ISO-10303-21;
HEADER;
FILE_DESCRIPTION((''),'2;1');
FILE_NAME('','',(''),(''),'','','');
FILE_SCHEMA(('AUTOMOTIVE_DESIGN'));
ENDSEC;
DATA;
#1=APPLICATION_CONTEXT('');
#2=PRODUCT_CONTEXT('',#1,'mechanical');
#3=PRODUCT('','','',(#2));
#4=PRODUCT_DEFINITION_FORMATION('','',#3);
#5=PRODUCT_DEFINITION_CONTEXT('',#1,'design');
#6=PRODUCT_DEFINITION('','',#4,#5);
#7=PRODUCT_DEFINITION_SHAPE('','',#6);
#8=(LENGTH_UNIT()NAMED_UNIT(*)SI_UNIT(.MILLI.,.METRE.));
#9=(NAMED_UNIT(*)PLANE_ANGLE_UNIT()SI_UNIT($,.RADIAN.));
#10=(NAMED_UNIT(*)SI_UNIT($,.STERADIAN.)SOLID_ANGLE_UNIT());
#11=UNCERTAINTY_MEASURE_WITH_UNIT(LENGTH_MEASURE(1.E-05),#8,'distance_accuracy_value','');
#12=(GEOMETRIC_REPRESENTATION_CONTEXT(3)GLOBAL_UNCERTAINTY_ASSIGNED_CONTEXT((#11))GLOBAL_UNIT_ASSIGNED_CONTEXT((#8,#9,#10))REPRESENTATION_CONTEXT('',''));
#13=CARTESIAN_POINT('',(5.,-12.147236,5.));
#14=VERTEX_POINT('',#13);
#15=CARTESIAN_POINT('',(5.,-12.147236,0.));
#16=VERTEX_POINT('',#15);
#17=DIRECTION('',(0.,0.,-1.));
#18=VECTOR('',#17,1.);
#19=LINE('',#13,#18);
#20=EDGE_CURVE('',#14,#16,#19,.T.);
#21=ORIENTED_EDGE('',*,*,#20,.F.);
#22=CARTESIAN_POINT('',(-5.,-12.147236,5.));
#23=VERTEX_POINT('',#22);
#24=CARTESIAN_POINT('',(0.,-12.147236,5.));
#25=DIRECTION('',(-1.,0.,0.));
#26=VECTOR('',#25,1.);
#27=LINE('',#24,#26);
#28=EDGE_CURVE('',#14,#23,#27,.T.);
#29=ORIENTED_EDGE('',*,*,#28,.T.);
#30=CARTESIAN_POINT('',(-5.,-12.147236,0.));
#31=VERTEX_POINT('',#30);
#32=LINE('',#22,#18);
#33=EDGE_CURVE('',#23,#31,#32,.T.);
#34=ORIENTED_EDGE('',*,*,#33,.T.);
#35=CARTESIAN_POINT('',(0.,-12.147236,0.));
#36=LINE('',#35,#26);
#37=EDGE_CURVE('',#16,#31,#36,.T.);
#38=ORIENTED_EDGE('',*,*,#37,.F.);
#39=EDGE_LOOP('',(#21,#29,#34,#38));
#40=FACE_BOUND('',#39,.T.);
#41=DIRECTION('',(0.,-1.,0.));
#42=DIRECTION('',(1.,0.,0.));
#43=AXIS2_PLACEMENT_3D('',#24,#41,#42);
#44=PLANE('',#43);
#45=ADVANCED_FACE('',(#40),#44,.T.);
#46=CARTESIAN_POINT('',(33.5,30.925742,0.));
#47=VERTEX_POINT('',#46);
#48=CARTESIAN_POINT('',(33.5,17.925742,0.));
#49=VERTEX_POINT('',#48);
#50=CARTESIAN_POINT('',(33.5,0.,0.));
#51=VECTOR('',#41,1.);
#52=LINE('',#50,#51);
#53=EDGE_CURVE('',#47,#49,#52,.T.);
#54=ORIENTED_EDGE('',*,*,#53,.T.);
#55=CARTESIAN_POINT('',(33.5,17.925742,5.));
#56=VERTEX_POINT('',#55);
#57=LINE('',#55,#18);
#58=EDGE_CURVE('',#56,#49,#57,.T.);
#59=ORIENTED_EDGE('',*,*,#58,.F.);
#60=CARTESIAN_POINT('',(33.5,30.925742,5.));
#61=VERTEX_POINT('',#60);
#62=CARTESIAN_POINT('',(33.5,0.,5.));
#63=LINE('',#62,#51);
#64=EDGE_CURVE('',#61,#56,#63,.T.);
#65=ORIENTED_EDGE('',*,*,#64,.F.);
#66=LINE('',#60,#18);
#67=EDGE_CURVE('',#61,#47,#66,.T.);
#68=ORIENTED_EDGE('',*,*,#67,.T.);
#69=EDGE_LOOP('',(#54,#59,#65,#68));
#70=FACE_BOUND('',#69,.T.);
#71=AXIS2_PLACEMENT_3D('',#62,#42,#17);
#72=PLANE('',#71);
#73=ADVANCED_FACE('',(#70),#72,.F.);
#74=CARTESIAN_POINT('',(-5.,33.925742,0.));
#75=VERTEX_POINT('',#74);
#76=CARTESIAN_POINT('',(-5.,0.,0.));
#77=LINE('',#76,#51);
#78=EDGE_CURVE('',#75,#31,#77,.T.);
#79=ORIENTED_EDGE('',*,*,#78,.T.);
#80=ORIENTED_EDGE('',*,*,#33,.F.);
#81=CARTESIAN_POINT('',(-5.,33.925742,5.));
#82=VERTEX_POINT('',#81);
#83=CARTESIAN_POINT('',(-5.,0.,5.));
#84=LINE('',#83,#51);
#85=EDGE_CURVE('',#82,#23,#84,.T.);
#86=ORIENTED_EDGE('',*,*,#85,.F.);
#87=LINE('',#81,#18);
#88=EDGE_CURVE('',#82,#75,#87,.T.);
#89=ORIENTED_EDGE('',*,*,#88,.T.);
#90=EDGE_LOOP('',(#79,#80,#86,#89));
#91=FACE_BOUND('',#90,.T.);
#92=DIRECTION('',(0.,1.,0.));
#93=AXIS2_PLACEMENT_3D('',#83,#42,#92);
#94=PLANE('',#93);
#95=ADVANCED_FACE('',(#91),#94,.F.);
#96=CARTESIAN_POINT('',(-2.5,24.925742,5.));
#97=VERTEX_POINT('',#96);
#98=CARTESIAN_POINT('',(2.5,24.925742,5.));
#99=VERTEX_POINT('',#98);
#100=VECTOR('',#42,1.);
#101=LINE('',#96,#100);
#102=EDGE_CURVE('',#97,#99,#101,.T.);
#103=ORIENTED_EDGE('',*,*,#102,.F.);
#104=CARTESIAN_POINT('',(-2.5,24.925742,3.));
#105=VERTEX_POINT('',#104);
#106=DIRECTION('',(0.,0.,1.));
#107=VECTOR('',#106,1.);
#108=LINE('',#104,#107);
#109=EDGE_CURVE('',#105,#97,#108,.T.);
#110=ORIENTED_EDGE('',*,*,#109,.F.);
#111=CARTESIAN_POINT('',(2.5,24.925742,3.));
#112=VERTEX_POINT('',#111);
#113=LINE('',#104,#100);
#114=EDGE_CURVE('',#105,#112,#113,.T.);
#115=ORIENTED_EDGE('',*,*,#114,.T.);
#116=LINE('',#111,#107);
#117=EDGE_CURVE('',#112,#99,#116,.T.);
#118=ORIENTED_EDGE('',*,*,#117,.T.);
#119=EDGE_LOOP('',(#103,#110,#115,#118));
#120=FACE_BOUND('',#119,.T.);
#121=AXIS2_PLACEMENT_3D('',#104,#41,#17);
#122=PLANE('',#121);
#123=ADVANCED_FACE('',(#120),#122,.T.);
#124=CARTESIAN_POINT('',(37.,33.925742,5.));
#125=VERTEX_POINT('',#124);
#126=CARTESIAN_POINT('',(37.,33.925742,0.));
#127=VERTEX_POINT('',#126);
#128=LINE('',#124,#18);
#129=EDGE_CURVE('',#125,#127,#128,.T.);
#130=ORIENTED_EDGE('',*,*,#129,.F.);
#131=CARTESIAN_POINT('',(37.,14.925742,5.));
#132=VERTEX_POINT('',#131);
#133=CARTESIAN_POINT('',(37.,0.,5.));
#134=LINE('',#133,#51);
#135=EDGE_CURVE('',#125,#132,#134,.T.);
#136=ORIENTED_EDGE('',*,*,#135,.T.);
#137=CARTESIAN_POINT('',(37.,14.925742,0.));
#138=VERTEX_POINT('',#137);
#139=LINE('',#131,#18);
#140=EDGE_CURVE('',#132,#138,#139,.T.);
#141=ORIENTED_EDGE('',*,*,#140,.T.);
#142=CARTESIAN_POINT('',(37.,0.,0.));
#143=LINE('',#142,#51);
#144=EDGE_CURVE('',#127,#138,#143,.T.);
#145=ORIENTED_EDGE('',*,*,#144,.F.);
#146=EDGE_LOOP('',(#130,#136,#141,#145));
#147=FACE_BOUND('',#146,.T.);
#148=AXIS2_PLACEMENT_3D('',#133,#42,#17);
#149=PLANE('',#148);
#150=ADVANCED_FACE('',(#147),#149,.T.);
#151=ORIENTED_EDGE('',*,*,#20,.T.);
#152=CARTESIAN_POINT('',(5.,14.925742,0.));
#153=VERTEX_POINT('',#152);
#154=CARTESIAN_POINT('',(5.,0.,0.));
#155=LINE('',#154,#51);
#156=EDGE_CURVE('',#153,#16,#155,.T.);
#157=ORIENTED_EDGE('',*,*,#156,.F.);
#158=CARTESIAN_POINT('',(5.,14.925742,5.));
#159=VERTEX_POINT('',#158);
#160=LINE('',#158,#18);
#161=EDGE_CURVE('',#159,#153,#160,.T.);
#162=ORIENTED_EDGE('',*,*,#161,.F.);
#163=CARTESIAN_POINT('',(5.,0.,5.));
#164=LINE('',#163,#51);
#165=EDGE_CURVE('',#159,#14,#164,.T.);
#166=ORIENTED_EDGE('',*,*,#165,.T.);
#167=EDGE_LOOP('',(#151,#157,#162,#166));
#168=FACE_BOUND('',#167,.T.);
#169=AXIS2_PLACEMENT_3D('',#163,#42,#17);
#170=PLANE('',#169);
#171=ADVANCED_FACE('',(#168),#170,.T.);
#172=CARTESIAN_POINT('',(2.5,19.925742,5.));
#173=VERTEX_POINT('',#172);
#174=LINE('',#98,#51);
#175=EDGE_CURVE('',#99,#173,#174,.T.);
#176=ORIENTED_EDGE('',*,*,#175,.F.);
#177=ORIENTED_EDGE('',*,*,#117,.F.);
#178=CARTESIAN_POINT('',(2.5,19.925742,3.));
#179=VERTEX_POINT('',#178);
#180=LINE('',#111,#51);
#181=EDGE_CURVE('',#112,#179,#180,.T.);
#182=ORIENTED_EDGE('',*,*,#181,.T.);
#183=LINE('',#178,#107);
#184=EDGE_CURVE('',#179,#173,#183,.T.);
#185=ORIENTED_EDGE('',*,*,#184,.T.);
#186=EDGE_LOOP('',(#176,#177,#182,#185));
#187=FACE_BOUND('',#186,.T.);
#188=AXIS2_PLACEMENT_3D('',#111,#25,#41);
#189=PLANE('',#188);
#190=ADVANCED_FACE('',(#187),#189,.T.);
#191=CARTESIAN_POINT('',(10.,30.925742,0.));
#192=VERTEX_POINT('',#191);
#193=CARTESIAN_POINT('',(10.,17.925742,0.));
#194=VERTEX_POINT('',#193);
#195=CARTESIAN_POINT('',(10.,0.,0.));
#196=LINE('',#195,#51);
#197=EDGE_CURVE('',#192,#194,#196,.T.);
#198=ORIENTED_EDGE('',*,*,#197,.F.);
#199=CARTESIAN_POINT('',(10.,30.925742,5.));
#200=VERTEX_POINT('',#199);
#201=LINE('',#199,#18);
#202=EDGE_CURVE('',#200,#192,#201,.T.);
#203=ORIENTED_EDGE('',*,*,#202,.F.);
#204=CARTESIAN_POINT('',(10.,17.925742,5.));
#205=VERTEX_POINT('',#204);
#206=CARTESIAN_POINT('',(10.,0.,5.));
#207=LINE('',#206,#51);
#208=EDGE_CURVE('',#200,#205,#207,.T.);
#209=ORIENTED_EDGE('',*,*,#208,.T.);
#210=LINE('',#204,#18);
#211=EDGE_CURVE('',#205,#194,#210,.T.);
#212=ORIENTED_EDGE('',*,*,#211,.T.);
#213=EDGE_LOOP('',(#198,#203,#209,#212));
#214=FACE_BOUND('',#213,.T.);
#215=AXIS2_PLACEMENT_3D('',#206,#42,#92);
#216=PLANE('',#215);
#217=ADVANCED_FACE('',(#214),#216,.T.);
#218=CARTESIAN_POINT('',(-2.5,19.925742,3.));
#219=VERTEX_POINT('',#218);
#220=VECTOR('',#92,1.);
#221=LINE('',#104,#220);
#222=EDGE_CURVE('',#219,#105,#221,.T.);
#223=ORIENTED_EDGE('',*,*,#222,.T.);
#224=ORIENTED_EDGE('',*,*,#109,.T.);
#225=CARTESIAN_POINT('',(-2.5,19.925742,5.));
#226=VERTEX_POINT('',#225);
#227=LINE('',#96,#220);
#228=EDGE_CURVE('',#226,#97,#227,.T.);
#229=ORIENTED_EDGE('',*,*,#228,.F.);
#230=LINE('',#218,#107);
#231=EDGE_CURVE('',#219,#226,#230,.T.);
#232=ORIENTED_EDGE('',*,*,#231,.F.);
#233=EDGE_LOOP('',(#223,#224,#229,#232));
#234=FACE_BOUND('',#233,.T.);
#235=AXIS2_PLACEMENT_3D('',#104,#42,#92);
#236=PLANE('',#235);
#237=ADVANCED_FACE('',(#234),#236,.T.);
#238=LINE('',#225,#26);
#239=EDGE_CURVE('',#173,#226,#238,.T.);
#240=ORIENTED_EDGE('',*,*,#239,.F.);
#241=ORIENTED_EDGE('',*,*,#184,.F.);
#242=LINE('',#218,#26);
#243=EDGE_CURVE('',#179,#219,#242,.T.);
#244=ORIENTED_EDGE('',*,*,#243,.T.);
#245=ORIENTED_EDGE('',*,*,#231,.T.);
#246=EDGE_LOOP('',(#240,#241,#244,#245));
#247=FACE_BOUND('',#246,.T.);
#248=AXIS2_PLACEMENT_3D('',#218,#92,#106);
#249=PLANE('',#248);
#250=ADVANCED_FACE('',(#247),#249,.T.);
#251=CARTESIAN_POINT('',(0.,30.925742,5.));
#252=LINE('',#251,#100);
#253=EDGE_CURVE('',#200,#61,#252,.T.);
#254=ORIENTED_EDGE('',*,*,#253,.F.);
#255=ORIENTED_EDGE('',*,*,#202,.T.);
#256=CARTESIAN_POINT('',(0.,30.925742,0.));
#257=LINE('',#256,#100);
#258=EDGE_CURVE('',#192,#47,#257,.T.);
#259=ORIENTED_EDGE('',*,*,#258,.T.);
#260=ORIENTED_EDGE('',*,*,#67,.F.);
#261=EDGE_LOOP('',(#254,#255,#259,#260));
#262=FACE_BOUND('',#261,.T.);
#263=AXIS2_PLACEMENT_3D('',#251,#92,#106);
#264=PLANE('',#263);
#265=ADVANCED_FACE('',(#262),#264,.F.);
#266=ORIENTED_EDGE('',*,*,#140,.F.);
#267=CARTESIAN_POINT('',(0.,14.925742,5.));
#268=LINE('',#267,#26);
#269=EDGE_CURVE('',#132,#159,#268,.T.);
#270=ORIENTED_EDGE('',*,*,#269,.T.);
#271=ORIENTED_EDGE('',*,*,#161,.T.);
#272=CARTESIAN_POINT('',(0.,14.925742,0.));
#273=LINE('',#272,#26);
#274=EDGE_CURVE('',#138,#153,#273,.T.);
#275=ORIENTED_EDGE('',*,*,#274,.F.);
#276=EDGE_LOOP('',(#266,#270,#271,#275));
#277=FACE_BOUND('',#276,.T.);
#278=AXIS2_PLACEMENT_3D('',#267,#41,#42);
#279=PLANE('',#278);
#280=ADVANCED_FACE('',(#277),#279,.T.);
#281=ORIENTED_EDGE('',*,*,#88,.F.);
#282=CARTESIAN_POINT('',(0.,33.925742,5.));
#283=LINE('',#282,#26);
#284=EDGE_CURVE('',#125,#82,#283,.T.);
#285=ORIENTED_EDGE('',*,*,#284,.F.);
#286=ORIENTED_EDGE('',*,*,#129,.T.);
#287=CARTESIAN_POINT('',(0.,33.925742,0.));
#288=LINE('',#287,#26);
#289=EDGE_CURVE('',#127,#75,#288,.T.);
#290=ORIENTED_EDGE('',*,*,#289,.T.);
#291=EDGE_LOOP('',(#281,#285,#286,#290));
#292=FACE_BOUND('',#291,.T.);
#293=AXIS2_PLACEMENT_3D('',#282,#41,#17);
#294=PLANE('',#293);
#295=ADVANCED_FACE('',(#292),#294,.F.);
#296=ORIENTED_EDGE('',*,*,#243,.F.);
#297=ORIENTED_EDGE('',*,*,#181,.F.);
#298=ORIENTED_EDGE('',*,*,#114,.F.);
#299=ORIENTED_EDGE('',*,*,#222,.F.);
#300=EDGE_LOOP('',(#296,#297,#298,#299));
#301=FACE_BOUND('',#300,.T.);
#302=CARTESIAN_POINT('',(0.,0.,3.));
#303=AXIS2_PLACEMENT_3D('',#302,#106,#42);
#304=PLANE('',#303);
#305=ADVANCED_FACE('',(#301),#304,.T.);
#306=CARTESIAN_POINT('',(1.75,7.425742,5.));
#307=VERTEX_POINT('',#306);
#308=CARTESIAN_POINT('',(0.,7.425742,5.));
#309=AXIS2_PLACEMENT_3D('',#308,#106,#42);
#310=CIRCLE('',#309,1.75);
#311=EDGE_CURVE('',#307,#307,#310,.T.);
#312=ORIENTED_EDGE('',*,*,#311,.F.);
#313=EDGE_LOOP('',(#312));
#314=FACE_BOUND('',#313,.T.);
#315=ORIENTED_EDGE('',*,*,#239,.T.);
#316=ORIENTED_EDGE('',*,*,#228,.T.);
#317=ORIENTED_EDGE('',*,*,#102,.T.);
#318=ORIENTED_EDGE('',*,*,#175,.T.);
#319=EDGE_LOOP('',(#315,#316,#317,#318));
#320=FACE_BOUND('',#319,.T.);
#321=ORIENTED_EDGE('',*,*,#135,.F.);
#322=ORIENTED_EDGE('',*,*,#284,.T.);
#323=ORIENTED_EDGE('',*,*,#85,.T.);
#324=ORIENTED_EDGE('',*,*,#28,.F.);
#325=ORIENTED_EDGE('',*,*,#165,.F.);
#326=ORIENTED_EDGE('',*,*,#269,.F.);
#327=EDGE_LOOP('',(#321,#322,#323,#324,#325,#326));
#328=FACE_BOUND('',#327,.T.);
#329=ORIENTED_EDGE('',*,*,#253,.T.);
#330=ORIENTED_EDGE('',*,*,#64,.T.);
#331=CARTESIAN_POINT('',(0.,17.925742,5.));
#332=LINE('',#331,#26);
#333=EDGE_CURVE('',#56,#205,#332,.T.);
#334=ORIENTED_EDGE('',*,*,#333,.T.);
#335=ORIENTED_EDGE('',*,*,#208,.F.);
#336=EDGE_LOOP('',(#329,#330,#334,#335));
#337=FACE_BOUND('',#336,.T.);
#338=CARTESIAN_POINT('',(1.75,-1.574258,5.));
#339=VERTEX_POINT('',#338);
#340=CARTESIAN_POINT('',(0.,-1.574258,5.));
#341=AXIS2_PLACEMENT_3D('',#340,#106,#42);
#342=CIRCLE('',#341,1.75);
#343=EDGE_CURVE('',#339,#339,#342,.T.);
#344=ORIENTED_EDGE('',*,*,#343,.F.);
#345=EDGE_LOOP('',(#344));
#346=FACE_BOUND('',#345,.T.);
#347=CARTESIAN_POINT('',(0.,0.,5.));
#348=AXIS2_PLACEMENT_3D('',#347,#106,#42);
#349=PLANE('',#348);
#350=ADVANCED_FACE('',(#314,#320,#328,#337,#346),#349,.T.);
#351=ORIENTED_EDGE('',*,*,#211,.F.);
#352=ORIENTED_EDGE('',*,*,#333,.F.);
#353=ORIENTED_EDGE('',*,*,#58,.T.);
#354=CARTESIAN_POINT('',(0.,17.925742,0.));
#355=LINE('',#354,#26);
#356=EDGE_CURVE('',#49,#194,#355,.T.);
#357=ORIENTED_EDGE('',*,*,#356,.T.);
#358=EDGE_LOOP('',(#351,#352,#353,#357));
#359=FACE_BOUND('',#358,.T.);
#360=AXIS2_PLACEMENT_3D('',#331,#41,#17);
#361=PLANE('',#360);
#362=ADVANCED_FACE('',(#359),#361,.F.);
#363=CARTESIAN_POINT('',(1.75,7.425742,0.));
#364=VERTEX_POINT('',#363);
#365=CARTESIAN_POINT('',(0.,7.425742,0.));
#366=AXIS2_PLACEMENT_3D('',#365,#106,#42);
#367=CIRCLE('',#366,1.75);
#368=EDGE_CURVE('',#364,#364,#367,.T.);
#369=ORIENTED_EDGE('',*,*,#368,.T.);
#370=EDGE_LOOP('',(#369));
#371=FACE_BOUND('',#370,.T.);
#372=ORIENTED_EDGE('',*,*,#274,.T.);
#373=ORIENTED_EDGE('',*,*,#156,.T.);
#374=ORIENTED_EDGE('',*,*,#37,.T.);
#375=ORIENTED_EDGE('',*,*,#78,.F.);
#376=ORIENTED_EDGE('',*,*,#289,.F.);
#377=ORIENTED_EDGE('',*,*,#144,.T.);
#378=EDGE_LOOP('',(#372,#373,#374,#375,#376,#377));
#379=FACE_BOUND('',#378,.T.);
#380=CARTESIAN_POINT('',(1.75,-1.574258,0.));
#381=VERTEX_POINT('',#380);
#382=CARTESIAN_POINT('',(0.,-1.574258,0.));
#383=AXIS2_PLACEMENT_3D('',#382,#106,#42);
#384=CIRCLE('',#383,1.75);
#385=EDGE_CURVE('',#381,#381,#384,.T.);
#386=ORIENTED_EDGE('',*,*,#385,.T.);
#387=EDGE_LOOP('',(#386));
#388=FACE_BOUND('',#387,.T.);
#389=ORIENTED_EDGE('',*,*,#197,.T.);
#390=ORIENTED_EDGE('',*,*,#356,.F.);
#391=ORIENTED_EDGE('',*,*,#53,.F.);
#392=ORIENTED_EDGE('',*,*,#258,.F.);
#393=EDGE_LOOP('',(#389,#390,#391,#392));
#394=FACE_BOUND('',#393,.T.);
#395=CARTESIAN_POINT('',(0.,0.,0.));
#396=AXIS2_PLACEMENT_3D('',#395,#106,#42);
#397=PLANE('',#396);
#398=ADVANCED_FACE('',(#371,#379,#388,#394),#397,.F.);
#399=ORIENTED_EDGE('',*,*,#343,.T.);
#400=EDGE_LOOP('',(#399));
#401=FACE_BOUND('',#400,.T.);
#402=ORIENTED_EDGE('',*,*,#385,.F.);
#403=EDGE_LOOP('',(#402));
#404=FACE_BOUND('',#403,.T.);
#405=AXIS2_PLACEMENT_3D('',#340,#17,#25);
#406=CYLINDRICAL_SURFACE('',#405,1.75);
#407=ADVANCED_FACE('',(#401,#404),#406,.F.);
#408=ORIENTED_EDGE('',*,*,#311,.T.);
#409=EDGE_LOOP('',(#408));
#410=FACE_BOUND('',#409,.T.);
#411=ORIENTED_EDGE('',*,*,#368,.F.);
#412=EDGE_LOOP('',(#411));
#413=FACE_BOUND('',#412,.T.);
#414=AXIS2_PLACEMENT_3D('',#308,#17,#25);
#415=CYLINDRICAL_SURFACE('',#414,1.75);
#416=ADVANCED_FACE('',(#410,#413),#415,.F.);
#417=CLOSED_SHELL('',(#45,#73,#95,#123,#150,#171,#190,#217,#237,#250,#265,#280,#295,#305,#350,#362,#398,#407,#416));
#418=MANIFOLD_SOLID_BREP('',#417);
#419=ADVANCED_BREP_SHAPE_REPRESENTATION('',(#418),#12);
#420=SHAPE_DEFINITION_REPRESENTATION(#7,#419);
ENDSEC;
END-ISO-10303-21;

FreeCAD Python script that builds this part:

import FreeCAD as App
import Part
import Sketcher
from FreeCAD import Vector


def add_polygon(sketch, points):
    """Adds a closed chain of lines whose ends are joined by coincident constraints."""
    first, n = sketch.GeometryCount, len(points)
    for a, b in zip(points, points[1:] + points[:1]):
        sketch.addGeometry(Part.LineSegment(App.Vector(*a, 0), App.Vector(*b, 0)), False)
    for i in range(n):
        sketch.addConstraint(Sketcher.Constraint("Coincident", first + i, 2, first + (i + 1) % n, 1))

doc = App.newDocument("Part")
body = doc.addObject("PartDesign::Body", "Body")

# Sketch on XY plane
sketch1 = doc.addObject("Sketcher::SketchObject", "Sketch")
body.addObject(sketch1)
sketch1.AttachmentSupport = (doc.XY_Plane, [""])
sketch1.MapMode = "FlatFace"
add_polygon(sketch1, [(-5, 33.9), (-5, -12.1), (5, -12.1), (5, 14.9), (37, 14.9), (37, 33.9)])  # lines 0-5
sketch1.addGeometry(Part.Circle(Vector(0, -1.6, 0), Vector(0, 0, 1), 1.8), False)  # 6
sketch1.addGeometry(Part.Circle(Vector(0, 7.4, 0), Vector(0, 0, 1), 1.8), False)  # 7
add_polygon(sketch1, [(33.5, 17.9), (10, 17.9), (10, 30.9), (33.5, 30.9)])  # lines 8-11
sketch1.addConstraint(Sketcher.Constraint("Vertical", 0))
sketch1.addConstraint(Sketcher.Constraint("Horizontal", 1))
sketch1.addConstraint(Sketcher.Constraint("Vertical", 2))
sketch1.addConstraint(Sketcher.Constraint("Horizontal", 3))
sketch1.addConstraint(Sketcher.Constraint("Vertical", 4))
sketch1.addConstraint(Sketcher.Constraint("Horizontal", 5))
sketch1.addConstraint(Sketcher.Constraint("Horizontal", 8))
sketch1.addConstraint(Sketcher.Constraint("Vertical", 9))
sketch1.addConstraint(Sketcher.Constraint("Horizontal", 10))
sketch1.addConstraint(Sketcher.Constraint("Vertical", 11))
sketch1.addConstraint(Sketcher.Constraint("Equal", 6, 7))
sketch1.addConstraint(Sketcher.Constraint("PointOnObject", 6, 3, -2))
sketch1.addConstraint(Sketcher.Constraint("PointOnObject", 7, 3, -2))
sketch1.addConstraint(Sketcher.Constraint("Diameter", 6, 3.5))
sketch1.addConstraint(Sketcher.Constraint("DistanceX", 1, 1, 1, 2, 10.0))
sketch1.addConstraint(Sketcher.Constraint("DistanceX", 3, 1, 3, 2, 32.0))
sketch1.addConstraint(Sketcher.Constraint("DistanceY", 4, 1, 4, 2, 19.0))
sketch1.addConstraint(Sketcher.Constraint("DistanceY", 9, 1, 9, 2, 13.0))
sketch1.addConstraint(Sketcher.Constraint("DistanceX", 8, 2, 8, 1, 23.5))
sketch1.addConstraint(Sketcher.Constraint("DistanceX", 0, 2, -1, 1, 5.0))
sketch1.addConstraint(Sketcher.Constraint("DistanceX", -1, 1, 8, 2, 10.0))
sketch1.addConstraint(Sketcher.Constraint("DistanceY", 6, 3, 7, 3, 9.0))
sketch1.addConstraint(Sketcher.Constraint("DistanceY", 2, 2, 8, 2, 3.0))
sketch1.addConstraint(Sketcher.Constraint("DistanceY", 7, 3, 2, 2, 7.5))
sketch1.addConstraint(Sketcher.Constraint("DistanceY", 0, 2, 0, 1, 46.072978))
sketch1.addConstraint(Sketcher.Constraint("DistanceY", 6, 3, -1, 1, 1.574258))
pad1 = doc.addObject("PartDesign::Pad", "Pad")
body.addObject(pad1)
pad1.Profile = sketch1
pad1.Length = 5

# Sketch on XY plane
sketch2 = doc.addObject("Sketcher::SketchObject", "Sketch001")
body.addObject(sketch2)
sketch2.AttachmentSupport = (doc.XY_Plane, [""])
sketch2.MapMode = "FlatFace"
sketch2.AttachmentOffset = App.Placement(Vector(0, 0, 5), App.Rotation())
add_polygon(sketch2, [(2, 25), (2, 20), (-2, 20), (-2, 25)])  # lines 0-3
sketch2.addConstraint(Sketcher.Constraint("Vertical", 0))
sketch2.addConstraint(Sketcher.Constraint("Horizontal", 1))
sketch2.addConstraint(Sketcher.Constraint("Vertical", 2))
sketch2.addConstraint(Sketcher.Constraint("Horizontal", 3))
sketch2.addConstraint(Sketcher.Constraint("Equal", 3, 0))
sketch2.addConstraint(Sketcher.Constraint("DistanceX", 1, 2, 1, 1, 5.0))
sketch2.addConstraint(Sketcher.Constraint("DistanceX", -1, 1, 0, 2, 2.5))
sketch2.addConstraint(Sketcher.Constraint("DistanceY", -1, 1, 0, 2, 19.925742))
pocket1 = doc.addObject("PartDesign::Pocket", "Pocket")
body.addObject(pocket1)
pocket1.Profile = sketch2
pocket1.Length = 2

doc.recompute()
